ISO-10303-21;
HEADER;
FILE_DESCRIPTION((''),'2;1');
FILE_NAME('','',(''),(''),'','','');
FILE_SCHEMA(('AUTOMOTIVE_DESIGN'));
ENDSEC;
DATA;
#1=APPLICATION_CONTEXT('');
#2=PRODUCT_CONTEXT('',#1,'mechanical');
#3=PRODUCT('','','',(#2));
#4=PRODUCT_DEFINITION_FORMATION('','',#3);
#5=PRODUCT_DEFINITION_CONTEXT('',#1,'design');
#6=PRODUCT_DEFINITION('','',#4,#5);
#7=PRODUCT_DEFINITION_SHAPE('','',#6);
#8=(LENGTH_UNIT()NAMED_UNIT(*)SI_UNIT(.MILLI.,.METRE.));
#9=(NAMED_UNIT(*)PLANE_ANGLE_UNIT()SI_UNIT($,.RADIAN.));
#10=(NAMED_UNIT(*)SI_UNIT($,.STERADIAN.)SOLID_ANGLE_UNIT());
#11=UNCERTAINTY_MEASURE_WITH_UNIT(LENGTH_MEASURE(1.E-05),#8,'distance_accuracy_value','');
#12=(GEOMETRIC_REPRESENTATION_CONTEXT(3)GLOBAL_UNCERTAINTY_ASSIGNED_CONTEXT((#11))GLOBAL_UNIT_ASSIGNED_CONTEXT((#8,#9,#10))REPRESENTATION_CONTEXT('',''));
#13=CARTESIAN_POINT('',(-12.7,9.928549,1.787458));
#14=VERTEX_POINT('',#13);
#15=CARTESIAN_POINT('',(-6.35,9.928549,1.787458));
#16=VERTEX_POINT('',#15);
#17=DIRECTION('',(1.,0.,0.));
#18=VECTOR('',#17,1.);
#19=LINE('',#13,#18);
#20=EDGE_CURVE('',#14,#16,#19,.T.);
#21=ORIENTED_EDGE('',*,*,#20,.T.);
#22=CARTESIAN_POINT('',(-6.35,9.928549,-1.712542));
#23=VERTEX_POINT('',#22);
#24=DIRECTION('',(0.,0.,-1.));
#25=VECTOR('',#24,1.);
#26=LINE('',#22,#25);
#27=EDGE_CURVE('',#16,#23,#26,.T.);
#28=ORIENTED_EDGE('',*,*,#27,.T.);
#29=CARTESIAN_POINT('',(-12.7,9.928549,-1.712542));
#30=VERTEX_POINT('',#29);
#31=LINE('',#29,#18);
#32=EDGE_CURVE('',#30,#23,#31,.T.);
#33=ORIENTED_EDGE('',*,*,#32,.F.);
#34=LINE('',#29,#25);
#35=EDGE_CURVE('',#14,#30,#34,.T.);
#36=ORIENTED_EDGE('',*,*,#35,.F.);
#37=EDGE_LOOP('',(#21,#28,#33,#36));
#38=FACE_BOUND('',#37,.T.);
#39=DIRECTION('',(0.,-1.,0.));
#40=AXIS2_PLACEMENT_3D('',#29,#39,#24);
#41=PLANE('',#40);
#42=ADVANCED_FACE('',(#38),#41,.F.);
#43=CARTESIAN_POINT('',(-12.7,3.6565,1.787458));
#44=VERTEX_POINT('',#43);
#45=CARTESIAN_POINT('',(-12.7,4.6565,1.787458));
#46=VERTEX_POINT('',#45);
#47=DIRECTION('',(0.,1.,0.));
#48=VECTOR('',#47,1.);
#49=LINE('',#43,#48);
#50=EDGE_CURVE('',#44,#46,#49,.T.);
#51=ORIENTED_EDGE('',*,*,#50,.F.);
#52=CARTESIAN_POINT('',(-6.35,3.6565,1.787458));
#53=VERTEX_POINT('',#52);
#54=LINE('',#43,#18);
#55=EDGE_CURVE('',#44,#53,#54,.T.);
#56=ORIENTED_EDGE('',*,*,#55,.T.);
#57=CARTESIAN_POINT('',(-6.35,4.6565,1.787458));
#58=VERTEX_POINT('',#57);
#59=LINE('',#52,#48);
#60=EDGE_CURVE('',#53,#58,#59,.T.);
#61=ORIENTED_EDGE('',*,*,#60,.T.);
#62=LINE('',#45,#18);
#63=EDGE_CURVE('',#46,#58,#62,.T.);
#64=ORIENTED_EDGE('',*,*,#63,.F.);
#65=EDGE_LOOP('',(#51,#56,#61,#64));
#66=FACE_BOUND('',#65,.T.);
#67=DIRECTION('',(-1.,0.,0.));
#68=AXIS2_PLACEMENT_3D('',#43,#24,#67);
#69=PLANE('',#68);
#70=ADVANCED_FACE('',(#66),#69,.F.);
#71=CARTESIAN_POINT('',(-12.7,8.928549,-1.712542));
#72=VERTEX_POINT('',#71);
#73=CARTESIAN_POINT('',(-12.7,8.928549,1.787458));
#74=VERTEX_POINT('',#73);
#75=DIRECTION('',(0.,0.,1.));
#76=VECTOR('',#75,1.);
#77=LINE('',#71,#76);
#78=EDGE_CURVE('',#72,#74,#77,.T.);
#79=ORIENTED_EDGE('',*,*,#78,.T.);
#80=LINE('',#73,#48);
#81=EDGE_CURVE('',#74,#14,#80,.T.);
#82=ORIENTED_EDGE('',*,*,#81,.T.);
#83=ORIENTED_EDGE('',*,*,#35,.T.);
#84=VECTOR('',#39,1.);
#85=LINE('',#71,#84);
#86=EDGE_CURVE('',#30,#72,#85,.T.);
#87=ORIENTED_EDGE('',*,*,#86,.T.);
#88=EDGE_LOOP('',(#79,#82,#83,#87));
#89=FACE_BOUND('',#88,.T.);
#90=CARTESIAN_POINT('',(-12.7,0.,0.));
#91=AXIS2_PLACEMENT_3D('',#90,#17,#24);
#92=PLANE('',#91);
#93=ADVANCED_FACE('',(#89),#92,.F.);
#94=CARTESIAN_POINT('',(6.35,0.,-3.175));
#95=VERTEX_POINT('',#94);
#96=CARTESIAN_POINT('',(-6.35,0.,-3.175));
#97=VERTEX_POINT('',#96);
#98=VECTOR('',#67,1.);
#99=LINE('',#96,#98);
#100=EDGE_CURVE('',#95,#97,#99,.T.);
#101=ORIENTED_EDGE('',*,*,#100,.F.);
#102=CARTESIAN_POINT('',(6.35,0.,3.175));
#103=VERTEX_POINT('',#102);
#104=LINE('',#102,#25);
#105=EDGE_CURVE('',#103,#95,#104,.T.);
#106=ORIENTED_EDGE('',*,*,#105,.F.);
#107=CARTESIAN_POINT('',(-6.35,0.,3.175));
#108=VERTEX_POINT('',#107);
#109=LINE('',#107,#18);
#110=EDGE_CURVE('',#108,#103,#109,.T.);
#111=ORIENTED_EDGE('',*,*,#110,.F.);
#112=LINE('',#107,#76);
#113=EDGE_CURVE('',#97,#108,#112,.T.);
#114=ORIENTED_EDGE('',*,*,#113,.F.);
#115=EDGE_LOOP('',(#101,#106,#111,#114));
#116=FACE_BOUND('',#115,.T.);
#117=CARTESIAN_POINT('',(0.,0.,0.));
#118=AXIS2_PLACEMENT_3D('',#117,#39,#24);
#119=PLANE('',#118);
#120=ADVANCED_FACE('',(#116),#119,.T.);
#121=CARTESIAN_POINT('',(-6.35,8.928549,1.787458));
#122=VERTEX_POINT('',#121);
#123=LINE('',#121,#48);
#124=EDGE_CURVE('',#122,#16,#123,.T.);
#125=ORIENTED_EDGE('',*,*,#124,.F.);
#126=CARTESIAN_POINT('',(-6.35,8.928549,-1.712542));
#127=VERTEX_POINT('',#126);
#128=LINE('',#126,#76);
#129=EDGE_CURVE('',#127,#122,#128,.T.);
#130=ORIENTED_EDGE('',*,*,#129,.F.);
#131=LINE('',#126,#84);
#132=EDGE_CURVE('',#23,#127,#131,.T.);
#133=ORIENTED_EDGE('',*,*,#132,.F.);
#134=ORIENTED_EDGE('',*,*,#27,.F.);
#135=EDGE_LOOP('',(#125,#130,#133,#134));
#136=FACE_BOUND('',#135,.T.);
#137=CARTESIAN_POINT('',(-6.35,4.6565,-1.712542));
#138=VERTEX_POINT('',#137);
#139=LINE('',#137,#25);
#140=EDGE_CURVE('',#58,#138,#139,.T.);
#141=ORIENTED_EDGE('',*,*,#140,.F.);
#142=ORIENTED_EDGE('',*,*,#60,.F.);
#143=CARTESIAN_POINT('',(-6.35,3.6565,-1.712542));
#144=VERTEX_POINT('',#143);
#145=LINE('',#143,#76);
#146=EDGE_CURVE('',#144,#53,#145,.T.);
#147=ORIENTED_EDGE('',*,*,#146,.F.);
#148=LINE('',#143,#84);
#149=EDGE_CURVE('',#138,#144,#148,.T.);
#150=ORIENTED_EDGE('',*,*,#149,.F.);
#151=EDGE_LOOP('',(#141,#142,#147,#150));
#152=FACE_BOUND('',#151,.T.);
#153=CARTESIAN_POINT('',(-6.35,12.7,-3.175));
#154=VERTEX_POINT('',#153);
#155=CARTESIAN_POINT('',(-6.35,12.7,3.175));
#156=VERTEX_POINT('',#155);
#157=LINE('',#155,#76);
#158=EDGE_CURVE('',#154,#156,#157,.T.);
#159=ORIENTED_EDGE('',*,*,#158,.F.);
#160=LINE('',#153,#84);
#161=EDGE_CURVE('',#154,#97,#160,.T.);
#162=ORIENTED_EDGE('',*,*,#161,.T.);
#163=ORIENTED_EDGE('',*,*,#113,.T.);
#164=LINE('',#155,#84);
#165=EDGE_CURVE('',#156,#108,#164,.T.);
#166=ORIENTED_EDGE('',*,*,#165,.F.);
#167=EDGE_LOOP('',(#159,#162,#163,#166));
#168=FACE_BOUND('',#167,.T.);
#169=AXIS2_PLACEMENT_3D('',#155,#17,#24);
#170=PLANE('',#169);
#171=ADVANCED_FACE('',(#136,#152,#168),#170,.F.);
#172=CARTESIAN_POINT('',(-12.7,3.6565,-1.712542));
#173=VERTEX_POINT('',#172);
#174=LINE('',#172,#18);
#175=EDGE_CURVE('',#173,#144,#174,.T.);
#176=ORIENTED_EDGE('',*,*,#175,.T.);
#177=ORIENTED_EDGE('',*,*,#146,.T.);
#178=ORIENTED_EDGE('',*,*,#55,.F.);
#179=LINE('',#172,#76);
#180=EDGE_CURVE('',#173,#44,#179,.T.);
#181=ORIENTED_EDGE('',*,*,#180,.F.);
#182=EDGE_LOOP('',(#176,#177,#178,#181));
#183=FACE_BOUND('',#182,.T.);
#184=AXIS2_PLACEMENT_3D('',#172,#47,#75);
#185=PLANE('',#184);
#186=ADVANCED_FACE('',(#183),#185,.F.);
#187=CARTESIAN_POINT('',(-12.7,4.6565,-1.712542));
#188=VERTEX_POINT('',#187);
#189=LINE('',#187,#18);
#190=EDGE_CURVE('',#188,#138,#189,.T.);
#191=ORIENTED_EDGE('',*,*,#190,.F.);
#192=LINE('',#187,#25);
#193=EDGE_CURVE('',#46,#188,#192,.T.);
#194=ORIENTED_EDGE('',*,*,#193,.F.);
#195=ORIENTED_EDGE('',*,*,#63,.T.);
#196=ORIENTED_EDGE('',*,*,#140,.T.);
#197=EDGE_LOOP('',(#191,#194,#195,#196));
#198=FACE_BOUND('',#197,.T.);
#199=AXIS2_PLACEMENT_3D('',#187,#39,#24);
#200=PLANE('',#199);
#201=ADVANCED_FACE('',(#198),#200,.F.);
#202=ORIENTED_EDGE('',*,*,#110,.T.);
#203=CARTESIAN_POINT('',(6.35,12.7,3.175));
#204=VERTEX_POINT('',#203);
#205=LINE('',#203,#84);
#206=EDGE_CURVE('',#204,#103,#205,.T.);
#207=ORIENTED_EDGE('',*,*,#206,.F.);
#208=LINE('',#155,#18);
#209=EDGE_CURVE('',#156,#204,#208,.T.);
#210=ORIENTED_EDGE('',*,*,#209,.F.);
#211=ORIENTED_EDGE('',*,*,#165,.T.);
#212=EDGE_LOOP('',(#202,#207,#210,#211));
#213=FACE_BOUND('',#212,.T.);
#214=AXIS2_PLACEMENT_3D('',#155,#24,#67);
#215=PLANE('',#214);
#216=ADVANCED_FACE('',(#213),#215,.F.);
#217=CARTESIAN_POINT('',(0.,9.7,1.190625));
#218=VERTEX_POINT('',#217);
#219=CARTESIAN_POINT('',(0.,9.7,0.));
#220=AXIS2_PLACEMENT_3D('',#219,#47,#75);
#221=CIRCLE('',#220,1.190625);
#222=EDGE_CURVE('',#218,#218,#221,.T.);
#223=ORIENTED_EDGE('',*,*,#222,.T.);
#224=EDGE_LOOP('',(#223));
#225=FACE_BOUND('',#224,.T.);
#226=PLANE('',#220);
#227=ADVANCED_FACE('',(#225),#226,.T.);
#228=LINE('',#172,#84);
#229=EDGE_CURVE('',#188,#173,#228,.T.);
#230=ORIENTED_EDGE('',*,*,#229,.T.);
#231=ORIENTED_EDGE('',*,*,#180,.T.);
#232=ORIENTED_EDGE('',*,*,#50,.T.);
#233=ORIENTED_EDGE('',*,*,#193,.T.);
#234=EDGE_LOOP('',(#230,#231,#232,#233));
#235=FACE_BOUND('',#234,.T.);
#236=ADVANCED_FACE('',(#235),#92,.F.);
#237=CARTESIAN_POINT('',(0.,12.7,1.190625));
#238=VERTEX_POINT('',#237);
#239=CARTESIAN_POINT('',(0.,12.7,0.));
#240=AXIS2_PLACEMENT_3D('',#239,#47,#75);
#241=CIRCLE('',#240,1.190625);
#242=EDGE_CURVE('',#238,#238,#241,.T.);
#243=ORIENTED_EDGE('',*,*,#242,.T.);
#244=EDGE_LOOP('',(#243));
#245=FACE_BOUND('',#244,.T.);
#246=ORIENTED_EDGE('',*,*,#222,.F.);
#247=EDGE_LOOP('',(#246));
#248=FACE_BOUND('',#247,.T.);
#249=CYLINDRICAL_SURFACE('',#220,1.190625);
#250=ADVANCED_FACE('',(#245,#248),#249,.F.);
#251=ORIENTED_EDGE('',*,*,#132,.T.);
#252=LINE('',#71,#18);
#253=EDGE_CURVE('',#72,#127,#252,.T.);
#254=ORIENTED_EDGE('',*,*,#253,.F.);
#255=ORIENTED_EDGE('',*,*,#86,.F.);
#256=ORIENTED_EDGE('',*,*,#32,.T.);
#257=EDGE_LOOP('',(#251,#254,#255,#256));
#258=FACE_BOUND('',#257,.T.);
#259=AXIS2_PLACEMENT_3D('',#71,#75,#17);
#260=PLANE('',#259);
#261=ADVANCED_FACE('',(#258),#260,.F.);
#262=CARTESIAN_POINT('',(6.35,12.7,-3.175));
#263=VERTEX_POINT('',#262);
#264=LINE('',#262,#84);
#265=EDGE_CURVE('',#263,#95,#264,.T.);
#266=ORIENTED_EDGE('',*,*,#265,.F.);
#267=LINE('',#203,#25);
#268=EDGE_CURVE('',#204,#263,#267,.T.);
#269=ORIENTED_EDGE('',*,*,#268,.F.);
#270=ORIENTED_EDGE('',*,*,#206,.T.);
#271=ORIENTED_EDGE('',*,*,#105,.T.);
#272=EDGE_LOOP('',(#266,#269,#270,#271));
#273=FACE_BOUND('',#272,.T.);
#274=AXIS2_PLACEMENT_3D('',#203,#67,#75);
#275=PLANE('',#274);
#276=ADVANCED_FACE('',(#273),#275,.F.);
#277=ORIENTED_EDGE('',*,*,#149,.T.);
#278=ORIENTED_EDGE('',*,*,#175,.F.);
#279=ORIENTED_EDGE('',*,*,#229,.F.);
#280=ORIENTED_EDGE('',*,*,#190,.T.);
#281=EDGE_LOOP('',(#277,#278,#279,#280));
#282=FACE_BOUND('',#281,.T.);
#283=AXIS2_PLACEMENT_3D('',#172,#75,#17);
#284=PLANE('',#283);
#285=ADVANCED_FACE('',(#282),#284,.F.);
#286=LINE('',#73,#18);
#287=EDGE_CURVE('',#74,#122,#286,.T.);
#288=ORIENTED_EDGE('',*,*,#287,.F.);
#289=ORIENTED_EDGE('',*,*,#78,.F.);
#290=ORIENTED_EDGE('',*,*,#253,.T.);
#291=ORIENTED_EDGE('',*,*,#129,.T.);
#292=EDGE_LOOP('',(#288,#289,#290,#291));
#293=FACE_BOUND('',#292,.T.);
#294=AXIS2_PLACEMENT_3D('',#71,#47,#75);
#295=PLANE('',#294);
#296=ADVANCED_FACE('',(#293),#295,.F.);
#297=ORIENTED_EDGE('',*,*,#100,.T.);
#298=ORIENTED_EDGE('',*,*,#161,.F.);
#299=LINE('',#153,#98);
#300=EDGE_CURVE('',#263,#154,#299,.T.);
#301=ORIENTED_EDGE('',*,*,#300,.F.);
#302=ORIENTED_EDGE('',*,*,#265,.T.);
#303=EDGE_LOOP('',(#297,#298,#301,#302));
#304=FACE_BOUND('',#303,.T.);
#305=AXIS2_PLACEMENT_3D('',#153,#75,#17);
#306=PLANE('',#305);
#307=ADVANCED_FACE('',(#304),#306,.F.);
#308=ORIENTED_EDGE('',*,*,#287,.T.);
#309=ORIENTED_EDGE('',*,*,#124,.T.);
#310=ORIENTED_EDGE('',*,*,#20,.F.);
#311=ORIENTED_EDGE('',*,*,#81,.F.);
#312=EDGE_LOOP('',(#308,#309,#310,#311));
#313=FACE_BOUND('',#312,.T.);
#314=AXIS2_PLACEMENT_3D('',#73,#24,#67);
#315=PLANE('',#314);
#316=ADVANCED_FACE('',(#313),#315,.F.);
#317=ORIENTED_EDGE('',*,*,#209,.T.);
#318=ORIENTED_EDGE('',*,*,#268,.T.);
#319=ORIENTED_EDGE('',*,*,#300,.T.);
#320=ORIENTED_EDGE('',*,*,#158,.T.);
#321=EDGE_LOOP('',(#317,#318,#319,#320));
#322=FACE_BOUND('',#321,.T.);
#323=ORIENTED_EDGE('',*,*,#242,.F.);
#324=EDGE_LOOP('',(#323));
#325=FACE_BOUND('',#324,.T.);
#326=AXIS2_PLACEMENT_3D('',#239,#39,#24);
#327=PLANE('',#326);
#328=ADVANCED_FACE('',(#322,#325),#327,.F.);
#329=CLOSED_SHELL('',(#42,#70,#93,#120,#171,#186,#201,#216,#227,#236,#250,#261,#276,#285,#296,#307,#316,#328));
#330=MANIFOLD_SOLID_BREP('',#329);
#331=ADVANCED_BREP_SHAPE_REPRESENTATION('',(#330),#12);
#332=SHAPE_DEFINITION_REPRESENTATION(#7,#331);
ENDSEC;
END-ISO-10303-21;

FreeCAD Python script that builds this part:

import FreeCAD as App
import Part
import Sketcher

V = App.Vector
Q = App.Units.Quantity


def add_polygon(sketch, points):
    """Adds a closed chain of lines whose ends are joined by coincident constraints."""
    first, n = sketch.GeometryCount, len(points)
    for a, b in zip(points, points[1:] + points[:1]):
        sketch.addGeometry(Part.LineSegment(App.Vector(*a, 0), App.Vector(*b, 0)), False)
    for i in range(n):
        sketch.addConstraint(Sketcher.Constraint("Coincident", first + i, 2, first + (i + 1) % n, 1))

doc = App.newDocument("Part")
body = doc.addObject("PartDesign::Body", "Body")

# Sketch on XZ plane
sketch1 = body.newObject("Sketcher::SketchObject", "Sketch")
sketch1.AttachmentSupport = (doc.getObject("XZ_Plane"), [""])
sketch1.MapMode = "FlatFace"
add_polygon(sketch1, [(-6.35, -3.175), (-6.35, 3.175), (6.35, 3.175), (6.35, -3.175)])  # lines 0-3
sketch1.addConstraint(Sketcher.Constraint("Vertical", 0))
sketch1.addConstraint(Sketcher.Constraint("Horizontal", 1))
sketch1.addConstraint(Sketcher.Constraint("Vertical", 2))
sketch1.addConstraint(Sketcher.Constraint("Horizontal", 3))
sketch1.addConstraint(Sketcher.Constraint("Symmetric", 0, 2, 2, 2, -1, 1))
sketch1.addConstraint(Sketcher.Constraint("DistanceX", 1, 1, 1, 2, Q("12.7 mm")))
sketch1.addConstraint(Sketcher.Constraint("DistanceY", 0, 1, 0, 2, Q("6.35 mm")))
pad1 = body.newObject("PartDesign::Pad", "Pad")
pad1.Profile = sketch1
pad1.Length = 12.7
pad1.Reversed = True

# Sketch on XZ plane
sketch2 = body.newObject("Sketcher::SketchObject", "Sketch001")
sketch2.AttachmentSupport = (doc.getObject("XZ_Plane"), [""])
sketch2.MapMode = "FlatFace"
sketch2.AttachmentOffset = App.Placement(V(0, 0, -12.7), App.Rotation())
sketch2.addGeometry(Part.Circle(V(0, 0, 0), V(0, 0, 1), 1.190625), False)
sketch2.addConstraint(Sketcher.Constraint("Coincident", 0, 3, -1, 1))
sketch2.addConstraint(Sketcher.Constraint("Diameter", 0, Q("2.38125 mm")))
pocket1 = body.newObject("PartDesign::Pocket", "Pocket")
pocket1.Profile = sketch2
pocket1.Length = 3
pocket1.Reversed = True

# Sketch on YZ plane
sketch3 = body.newObject("Sketcher::SketchObject", "Sketch002")
sketch3.AttachmentSupport = (doc.getObject("YZ_Plane"), [""])
sketch3.MapMode = "FlatFace"
sketch3.AttachmentOffset = App.Placement(V(0, 0, -6.35), App.Rotation())
add_polygon(sketch3, [(4.6565, -1.712542), (3.6565, -1.712542), (3.6565, 1.787458), (4.6565, 1.787458)])  # lines 0-3
add_polygon(sketch3, [(9.928549, -1.712542), (8.928549, -1.712542), (8.928549, 1.787458), (9.928549, 1.787458)])  # lines 4-7
sketch3.addConstraint(Sketcher.Constraint("Horizontal", 0))
sketch3.addConstraint(Sketcher.Constraint("Vertical", 1))
sketch3.addConstraint(Sketcher.Constraint("Horizontal", 2))
sketch3.addConstraint(Sketcher.Constraint("Vertical", 3))
sketch3.addConstraint(Sketcher.Constraint("Horizontal", 4))
sketch3.addConstraint(Sketcher.Constraint("Vertical", 5))
sketch3.addConstraint(Sketcher.Constraint("Horizontal", 6))
sketch3.addConstraint(Sketcher.Constraint("Vertical", 7))
sketch3.addConstraint(Sketcher.Constraint("Horizontal", 3, 2, 4, 2))
sketch3.addConstraint(Sketcher.Constraint("Horizontal", 2, 2, 5, 2))
sketch3.addConstraint(Sketcher.Constraint("Equal", 2, 4))
sketch3.addConstraint(Sketcher.Constraint("DistanceX", 0, 2, 0, 1, Q("1 mm")))
sketch3.addConstraint(Sketcher.Constraint("DistanceY", 1, 1, 1, 2, Q("3.5 mm")))
sketch3.addConstraint(Sketcher.Constraint("DistanceX", -1, 1, 0, 2, Q("3.6565 mm")))
sketch3.addConstraint(Sketcher.Constraint("DistanceY", 0, 2, -1, 1, Q("1.712542 mm")))
sketch3.addConstraint(Sketcher.Constraint("DistanceX", -1, 1, 4, 2, Q("8.928549 mm")))
pad2 = body.newObject("PartDesign::Pad", "Pad001")
pad2.Profile = sketch3
pad2.Length = 6.35
pad2.Reversed = True

doc.recompute()
